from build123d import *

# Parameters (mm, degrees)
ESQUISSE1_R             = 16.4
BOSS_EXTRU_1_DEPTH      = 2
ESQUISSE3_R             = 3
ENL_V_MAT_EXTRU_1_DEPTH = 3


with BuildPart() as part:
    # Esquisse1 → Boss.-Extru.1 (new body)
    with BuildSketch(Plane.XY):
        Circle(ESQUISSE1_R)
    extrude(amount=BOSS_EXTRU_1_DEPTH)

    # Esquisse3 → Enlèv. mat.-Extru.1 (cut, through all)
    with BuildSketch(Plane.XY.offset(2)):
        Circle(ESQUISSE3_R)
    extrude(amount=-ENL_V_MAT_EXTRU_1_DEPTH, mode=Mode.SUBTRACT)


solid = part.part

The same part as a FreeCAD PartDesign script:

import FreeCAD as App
import Part
import Sketcher

V = App.Vector
Q = App.Units.Quantity

doc = App.newDocument("Part")
body = doc.addObject("PartDesign::Body", "Body")

# Sketch on XY plane
sketch1 = doc.addObject("Sketcher::SketchObject", "Sketch")
body.addObject(sketch1)
sketch1.AttachmentSupport = (doc.XY_Plane, [""])
sketch1.MapMode = "FlatFace"
sketch1.addGeometry(Part.Circle(V(0, 0, 0), V(0, 0, 1), 16), False)
sketch1.addConstraint([
    Sketcher.Constraint("Coincident", 0, 3, -1, 1),
    Sketcher.Constraint("Diameter", 0, Q("32.8 mm")),
])
pad1 = doc.addObject("PartDesign::Pad", "Pad")
body.addObject(pad1)
pad1.Profile = sketch1
pad1.Length = 2

# Sketch on XY plane
sketch2 = doc.addObject("Sketcher::SketchObject", "Sketch001")
body.addObject(sketch2)
sketch2.AttachmentSupport = (doc.XY_Plane, [""])
sketch2.MapMode = "FlatFace"
sketch2.AttachmentOffset = App.Placement(V(0, 0, 2), App.Rotation())
sketch2.addGeometry(Part.Circle(V(0, 0, 0), V(0, 0, 1), 3), False)
sketch2.addConstraint([
    Sketcher.Constraint("Coincident", 0, 3, -1, 1),
    Sketcher.Constraint("Diameter", 0, Q("6 mm")),
])
pocket1 = doc.addObject("PartDesign::Pocket", "Pocket")
body.addObject(pocket1)
pocket1.Profile = sketch2
pocket1.Type = "ThroughAll"

doc.recompute()
